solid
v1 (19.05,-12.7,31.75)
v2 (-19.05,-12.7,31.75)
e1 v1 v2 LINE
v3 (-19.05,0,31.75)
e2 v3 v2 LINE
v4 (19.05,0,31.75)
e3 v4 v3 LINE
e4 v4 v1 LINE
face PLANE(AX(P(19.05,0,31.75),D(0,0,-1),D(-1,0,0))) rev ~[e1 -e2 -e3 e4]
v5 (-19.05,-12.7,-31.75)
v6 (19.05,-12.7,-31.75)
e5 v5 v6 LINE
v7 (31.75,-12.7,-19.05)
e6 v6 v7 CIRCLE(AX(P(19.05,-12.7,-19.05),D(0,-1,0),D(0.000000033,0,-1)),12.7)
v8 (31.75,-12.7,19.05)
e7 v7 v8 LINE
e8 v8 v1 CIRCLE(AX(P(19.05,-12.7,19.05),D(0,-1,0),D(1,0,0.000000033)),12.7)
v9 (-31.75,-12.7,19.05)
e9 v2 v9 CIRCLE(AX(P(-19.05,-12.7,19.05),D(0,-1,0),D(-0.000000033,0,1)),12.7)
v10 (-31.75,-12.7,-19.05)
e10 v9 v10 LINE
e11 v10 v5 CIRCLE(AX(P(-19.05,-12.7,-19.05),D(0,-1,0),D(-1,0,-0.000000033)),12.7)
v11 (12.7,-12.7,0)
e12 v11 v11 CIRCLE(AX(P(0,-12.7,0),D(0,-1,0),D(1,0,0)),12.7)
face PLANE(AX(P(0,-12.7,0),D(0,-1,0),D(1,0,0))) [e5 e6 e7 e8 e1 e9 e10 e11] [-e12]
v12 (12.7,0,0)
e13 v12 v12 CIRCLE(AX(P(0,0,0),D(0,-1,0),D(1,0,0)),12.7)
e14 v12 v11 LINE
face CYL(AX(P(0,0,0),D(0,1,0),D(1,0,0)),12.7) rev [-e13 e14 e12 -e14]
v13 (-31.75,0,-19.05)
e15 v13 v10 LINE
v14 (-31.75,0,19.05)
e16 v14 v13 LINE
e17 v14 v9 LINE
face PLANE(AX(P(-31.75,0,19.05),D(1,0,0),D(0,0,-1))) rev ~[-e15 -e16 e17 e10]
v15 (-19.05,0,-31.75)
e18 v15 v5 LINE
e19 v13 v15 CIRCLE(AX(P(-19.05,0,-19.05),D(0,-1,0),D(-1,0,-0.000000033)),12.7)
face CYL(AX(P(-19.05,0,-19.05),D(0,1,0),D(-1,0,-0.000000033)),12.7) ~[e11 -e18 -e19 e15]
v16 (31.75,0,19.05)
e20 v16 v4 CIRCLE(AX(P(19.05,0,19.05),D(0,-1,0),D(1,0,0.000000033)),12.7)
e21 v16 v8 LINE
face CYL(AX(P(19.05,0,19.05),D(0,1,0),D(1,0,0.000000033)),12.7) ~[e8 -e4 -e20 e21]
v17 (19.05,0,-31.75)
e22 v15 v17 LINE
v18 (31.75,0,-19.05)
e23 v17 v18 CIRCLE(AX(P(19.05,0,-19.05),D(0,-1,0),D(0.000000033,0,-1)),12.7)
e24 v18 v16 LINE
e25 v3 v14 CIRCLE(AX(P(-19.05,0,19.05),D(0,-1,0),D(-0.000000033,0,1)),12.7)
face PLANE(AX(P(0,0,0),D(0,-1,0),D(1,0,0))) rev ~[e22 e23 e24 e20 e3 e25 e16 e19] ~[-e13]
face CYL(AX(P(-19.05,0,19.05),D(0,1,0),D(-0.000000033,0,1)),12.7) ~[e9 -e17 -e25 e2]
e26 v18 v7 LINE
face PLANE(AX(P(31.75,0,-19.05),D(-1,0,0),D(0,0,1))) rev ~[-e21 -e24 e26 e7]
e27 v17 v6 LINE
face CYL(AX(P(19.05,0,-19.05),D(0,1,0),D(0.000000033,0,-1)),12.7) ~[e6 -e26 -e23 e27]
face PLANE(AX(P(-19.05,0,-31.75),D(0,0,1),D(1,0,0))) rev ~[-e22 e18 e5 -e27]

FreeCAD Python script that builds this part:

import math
import FreeCAD as App
import Part
import Sketcher

V = App.Vector
Q = App.Units.Quantity

doc = App.newDocument("Part")
body = doc.addObject("PartDesign::Body", "Body")

# Sketch on XZ plane
sketch1 = body.newObject("Sketcher::SketchObject", "Sketch")
sketch1.AttachmentSupport = (doc.getObject("XZ_Plane"), [""])
sketch1.MapMode = "FlatFace"
sketch1.addGeometry([
    Part.ArcOfCircle(Part.Circle(V(19, 19, 0), V(0, 0, 1), 13), math.radians(0), math.radians(90)),  # 0
    Part.LineSegment(V(19, 32, 0), V(-19, 32, 0)),  # 1
    Part.ArcOfCircle(Part.Circle(V(-19, 19, 0), V(0, 0, 1), 13), math.radians(90), math.radians(180)),  # 2
    Part.LineSegment(V(-32, 19, 0), V(-32, -19, 0)),  # 3
    Part.ArcOfCircle(Part.Circle(V(-19, -19, 0), V(0, 0, 1), 13), math.radians(-180), math.radians(-90)),  # 4
    Part.LineSegment(V(-19, -32, 0), V(19, -32, 0)),  # 5
    Part.ArcOfCircle(Part.Circle(V(19, -19, 0), V(0, 0, 1), 13), math.radians(-90), math.radians(0)),  # 6
    Part.LineSegment(V(32, -19, 0), V(32, 19, 0)),  # 7
    Part.Circle(V(0, 0, 0), V(0, 0, 1), 13),  # 8
], False)
sketch1.addConstraint([
    Sketcher.Constraint("Tangent", 0, 2, 1, 1),
    Sketcher.Constraint("Tangent", 1, 2, 2, 1),
    Sketcher.Constraint("Tangent", 2, 2, 3, 1),
    Sketcher.Constraint("Tangent", 3, 2, 4, 1),
    Sketcher.Constraint("Tangent", 4, 2, 5, 1),
    Sketcher.Constraint("Tangent", 5, 2, 6, 1),
    Sketcher.Constraint("Tangent", 6, 2, 7, 1),
    Sketcher.Constraint("Tangent", 7, 2, 0, 1),
    Sketcher.Constraint("Horizontal", 1),
    Sketcher.Constraint("Vertical", 3),
    Sketcher.Constraint("Horizontal", 5),
    Sketcher.Constraint("Vertical", 7),
    Sketcher.Constraint("Coincident", 8, 3, -1, 1),
    Sketcher.Constraint("Equal", 0, 2),
    Sketcher.Constraint("Equal", 2, 4),
    Sketcher.Constraint("Equal", 4, 6),
    Sketcher.Constraint("Equal", 6, 8),
    Sketcher.Constraint("Symmetric", 0, 3, 4, 3, -1, 1),
    Sketcher.Constraint("Equal", 5, 3),
    Sketcher.Constraint("Diameter", 8, Q("1 in")),
    Sketcher.Constraint("DistanceX", 1, 2, 1, 1, Q("1.5 in")),
])
pad1 = body.newObject("PartDesign::Pad", "Pad")
pad1.Profile = sketch1
pad1.Length = Q("0.5 in")

doc.recompute()
